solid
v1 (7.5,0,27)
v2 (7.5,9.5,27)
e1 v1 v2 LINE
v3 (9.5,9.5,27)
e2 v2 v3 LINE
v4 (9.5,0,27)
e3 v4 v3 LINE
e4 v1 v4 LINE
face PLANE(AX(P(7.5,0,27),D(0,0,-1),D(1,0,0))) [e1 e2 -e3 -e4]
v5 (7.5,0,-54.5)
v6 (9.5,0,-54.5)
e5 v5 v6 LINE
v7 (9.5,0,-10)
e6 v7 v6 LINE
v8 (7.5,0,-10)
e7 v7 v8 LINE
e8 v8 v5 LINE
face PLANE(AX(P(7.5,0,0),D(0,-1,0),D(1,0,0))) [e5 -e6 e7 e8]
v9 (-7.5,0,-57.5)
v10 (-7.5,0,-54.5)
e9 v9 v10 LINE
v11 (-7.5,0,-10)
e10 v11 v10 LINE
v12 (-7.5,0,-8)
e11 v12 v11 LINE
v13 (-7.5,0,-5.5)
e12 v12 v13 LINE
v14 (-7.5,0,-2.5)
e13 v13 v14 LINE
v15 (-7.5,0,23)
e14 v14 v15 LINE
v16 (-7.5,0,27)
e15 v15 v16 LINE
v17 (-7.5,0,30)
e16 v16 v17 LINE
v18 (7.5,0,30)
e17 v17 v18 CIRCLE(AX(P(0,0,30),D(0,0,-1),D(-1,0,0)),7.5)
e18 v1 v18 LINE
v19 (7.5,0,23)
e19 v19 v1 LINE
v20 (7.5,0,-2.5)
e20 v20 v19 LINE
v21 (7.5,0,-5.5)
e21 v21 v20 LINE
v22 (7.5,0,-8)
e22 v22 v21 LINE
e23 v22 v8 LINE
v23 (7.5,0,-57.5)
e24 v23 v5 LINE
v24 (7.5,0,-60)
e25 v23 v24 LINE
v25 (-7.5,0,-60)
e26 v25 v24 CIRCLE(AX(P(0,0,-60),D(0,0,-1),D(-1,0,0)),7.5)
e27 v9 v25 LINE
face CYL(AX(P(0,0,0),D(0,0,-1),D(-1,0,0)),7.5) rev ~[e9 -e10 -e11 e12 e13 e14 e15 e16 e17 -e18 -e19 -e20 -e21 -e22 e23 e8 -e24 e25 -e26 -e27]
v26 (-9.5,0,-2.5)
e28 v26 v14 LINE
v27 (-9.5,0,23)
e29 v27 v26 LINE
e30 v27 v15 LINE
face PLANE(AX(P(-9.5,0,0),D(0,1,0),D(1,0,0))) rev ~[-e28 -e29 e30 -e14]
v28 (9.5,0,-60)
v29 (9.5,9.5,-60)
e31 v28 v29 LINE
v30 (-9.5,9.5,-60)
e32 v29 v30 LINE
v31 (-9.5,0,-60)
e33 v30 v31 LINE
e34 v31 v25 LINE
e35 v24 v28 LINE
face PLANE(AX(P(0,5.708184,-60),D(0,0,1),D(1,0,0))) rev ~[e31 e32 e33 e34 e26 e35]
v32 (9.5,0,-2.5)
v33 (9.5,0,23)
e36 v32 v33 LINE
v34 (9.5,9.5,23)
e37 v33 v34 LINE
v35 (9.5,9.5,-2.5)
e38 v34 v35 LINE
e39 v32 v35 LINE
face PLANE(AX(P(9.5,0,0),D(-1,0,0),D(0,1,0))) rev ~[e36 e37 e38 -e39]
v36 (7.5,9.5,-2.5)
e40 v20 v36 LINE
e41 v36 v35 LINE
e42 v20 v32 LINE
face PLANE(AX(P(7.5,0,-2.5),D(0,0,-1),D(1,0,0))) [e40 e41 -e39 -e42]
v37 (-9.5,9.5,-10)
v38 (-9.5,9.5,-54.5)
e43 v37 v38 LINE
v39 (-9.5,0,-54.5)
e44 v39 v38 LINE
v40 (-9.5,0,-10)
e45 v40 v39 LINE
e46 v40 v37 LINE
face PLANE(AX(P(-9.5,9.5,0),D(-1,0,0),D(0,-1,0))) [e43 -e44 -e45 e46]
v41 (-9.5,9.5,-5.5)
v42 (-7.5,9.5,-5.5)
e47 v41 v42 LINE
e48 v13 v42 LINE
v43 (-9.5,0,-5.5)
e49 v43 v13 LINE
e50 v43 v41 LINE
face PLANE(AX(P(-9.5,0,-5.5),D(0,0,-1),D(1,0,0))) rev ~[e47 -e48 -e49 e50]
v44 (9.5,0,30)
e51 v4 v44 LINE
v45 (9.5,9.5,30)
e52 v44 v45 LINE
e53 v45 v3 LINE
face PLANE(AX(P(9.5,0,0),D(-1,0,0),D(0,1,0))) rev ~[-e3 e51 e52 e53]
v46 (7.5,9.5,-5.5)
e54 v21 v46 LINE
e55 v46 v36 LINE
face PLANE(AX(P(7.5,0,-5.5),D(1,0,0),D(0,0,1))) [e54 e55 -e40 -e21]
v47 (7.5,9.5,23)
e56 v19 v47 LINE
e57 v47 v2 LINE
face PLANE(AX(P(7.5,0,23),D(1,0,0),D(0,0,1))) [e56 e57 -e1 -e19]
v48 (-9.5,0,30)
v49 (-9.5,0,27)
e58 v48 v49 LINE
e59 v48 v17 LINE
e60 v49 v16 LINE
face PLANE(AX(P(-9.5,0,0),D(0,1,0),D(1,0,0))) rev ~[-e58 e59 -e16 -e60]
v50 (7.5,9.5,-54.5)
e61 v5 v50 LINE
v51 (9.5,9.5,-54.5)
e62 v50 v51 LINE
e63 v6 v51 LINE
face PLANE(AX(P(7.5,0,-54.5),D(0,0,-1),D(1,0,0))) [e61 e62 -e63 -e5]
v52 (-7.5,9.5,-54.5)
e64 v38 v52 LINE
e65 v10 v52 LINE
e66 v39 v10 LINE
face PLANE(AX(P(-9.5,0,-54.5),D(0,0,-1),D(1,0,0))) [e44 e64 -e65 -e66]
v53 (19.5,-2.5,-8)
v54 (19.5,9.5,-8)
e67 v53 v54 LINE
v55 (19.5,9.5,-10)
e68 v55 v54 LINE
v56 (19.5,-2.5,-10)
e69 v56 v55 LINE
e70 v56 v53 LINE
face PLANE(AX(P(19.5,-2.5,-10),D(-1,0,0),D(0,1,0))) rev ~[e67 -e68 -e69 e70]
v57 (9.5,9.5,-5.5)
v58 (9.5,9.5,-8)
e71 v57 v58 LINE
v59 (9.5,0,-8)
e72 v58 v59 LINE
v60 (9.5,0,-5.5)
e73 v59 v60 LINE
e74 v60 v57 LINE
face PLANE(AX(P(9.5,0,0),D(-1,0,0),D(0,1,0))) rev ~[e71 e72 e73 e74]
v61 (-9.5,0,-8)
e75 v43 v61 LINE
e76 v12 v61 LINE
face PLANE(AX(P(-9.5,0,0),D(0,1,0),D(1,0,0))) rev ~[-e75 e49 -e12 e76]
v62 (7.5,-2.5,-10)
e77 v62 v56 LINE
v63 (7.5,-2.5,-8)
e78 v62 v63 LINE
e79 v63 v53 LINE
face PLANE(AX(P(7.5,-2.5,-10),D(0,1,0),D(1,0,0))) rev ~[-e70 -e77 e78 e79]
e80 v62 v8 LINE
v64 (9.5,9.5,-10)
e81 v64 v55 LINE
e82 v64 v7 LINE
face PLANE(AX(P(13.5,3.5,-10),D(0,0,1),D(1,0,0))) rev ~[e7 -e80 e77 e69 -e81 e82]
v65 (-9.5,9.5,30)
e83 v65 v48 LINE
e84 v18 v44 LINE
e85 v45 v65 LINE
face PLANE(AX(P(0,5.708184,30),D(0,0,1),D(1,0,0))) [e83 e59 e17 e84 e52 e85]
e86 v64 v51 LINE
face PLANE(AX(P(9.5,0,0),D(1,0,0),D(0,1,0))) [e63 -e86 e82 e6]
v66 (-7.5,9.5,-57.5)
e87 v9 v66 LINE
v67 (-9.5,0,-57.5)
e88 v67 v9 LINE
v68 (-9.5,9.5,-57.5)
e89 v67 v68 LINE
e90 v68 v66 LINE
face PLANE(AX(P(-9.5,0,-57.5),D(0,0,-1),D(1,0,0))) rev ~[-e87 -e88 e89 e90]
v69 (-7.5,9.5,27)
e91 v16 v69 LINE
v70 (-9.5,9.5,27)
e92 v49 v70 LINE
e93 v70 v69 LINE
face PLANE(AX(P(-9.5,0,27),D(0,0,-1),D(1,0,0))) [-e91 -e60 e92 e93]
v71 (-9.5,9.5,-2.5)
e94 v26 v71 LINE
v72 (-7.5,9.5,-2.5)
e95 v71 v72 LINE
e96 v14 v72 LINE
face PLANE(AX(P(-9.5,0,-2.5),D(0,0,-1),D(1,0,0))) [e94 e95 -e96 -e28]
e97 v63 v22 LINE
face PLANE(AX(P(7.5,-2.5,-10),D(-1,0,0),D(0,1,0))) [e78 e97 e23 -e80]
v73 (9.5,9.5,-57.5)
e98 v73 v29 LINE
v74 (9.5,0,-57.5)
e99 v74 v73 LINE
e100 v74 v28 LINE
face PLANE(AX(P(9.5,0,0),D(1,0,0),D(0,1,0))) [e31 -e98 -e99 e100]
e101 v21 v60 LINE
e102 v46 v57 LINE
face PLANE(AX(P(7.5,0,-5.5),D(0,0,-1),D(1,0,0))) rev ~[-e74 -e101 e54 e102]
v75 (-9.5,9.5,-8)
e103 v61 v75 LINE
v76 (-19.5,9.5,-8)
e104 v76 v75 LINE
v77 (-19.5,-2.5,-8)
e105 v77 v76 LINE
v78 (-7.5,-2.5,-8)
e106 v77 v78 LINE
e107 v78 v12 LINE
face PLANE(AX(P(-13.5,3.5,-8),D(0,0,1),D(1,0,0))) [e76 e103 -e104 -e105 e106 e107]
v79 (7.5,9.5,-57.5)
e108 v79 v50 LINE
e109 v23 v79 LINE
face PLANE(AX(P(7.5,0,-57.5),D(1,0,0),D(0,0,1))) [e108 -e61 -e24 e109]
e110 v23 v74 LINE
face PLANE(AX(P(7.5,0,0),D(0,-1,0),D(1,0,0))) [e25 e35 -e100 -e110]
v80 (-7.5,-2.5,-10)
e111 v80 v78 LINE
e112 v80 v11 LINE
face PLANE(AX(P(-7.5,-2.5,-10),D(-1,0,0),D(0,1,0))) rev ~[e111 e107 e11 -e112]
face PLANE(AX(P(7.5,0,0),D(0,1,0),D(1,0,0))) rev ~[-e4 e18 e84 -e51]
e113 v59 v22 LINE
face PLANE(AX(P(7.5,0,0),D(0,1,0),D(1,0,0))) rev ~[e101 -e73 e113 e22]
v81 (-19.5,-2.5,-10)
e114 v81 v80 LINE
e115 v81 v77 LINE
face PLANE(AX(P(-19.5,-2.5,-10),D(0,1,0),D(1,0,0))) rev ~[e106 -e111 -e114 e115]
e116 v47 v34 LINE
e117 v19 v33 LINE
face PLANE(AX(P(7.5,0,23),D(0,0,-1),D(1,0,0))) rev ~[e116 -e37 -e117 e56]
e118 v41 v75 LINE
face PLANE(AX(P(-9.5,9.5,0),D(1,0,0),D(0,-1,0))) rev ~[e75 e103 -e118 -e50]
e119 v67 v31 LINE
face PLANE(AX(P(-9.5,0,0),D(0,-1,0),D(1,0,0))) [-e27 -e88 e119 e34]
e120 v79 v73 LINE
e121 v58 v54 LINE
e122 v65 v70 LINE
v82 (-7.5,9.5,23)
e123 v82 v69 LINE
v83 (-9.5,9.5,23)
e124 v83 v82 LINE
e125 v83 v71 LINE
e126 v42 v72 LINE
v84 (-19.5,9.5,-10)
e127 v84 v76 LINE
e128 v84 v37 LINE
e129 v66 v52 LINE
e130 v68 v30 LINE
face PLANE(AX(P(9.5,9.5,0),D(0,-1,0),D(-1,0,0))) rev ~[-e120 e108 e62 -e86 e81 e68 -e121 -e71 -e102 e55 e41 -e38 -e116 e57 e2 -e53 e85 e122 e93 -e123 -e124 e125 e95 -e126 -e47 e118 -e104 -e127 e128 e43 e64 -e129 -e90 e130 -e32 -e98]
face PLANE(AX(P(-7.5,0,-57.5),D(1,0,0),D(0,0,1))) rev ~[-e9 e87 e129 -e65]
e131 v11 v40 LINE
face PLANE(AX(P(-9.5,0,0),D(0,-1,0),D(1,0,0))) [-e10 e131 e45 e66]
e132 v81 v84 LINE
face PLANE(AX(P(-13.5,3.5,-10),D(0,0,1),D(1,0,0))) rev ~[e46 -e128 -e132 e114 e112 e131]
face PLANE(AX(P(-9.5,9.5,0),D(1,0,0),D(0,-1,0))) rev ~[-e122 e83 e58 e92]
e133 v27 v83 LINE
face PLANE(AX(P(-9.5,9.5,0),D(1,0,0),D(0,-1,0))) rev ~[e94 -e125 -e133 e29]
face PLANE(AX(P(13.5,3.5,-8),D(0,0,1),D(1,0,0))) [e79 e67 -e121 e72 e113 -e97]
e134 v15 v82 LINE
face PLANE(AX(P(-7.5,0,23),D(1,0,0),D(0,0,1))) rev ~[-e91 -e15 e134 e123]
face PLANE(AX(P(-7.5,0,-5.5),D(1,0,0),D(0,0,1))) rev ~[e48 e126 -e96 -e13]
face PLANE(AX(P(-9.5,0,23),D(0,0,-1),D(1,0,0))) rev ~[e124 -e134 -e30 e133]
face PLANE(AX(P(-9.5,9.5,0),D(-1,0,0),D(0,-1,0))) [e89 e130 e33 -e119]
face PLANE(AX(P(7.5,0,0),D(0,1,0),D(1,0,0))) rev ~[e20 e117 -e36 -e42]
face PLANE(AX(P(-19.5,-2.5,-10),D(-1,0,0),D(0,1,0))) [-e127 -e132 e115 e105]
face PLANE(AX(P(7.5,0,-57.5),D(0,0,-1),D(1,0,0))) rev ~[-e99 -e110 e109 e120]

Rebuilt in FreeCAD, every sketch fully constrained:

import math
import FreeCAD as App
import Part
import Sketcher
from FreeCAD import Vector

doc = App.newDocument("Part")
params = doc.addObject("Spreadsheet::Sheet", "Params")
for row, (alias, value) in enumerate([
    ("sketch1_radius", "7.5 mm"),
    ("sketch1_width", "2 mm"),
    ("sketch1_height", "9.5 mm"),
    ("pad1_length", "60 mm"),
    ("sketch2_width", "12 mm"),
    ("pad2_length", "2 mm"),
    ("sketch3_radius", "7.5 mm"),
    ("sketch3_width", "2 mm"),
    ("sketch3_height", "9.5 mm"),
    ("pad3_length", "30 mm"),
    ("sketch4_width", "2 mm"),
    ("sketch4_height", "3 mm"),
    ("sketch4_height2", "4 mm"),
], start=1):
    params.set(f"A{row}", alias)
    params.set(f"B{row}", "=" + value)
    params.setAlias(f"B{row}", alias)

body = doc.addObject("PartDesign::Body", "Body")

sketch1 = doc.addObject("Sketcher::SketchObject", "Sketch")
body.addObject(sketch1)
sketch1.AttachmentSupport = (doc.XY_Plane, [""])
sketch1.MapMode = "FlatFace"
sketch1.addGeometry([
    Part.LineSegment(Vector(-9.5, 0, 0), Vector(-7.5, 0, 0)),
    Part.ArcOfCircle(Part.Circle(Vector(0, 0, 0), Vector(0, 0, 1), 7.5), math.radians(0), math.radians(180)),
    Part.LineSegment(Vector(7.5, 0, 0), Vector(9.5, 0, 0)),
    Part.LineSegment(Vector(9.5, 0, 0), Vector(9.5, 9.5, 0)),
    Part.LineSegment(Vector(9.5, 9.5, 0), Vector(-9.5, 9.5, 0)),
    Part.LineSegment(Vector(-9.5, 9.5, 0), Vector(-9.5, 0, 0)),
], False)
sketch1.addConstraint([
    Sketcher.Constraint("Coincident", 0, 2, 1, 2),
    Sketcher.Constraint("Coincident", 1, 1, 2, 1),
    Sketcher.Constraint("Coincident", 2, 2, 3, 1),
    Sketcher.Constraint("Coincident", 3, 2, 4, 1),
    Sketcher.Constraint("Coincident", 4, 2, 5, 1),
    Sketcher.Constraint("Coincident", 5, 2, 0, 1),
    Sketcher.Constraint("Horizontal", 0),
    Sketcher.Constraint("Horizontal", 2),
    Sketcher.Constraint("Vertical", 3),
    Sketcher.Constraint("Horizontal", 4),
    Sketcher.Constraint("Vertical", 5),
    Sketcher.Constraint("Coincident", 1, 3, -1, 1),
    Sketcher.Constraint("Symmetric", 2, 2, 5, 2, -1, 1),
    Sketcher.Constraint("PointOnObject", 0, 2, -1),
    Sketcher.Constraint("Radius", 1, 7.5),
    Sketcher.Constraint("DistanceX", 0, 1, 0, 2, 2.0),
    Sketcher.Constraint("DistanceY", 3, 1, 3, 2, 9.5),
])
sketch1.setExpression("Constraints[14]", "Params.sketch1_radius")
sketch1.setExpression("Constraints[15]", "Params.sketch1_width")
sketch1.setExpression("Constraints[16]", "Params.sketch1_height")
pad1 = doc.addObject("PartDesign::Pad", "Pad")
body.addObject(pad1)
pad1.Profile = sketch1
pad1.setExpression("Length", "Params.pad1_length")
pad1.Reversed = True

sketch2 = doc.addObject("Sketcher::SketchObject", "Sketch001")
body.addObject(sketch2)
sketch2.AttachmentSupport = (doc.XY_Plane, [""])
sketch2.MapMode = "FlatFace"
sketch2.AttachmentOffset = App.Placement(Vector(0, 0, -10), App.Rotation())
sketch2.addGeometry([
    Part.LineSegment(Vector(-20, 10, 0), Vector(-20, -2, 0)),
    Part.LineSegment(Vector(-20, -2, 0), Vector(-8, -2, 0)),
    Part.LineSegment(Vector(-8, -2, 0), Vector(-8, 10, 0)),
    Part.LineSegment(Vector(-8, 10, 0), Vector(-20, 10, 0)),
    Part.LineSegment(Vector(8, 10, 0), Vector(8, -2, 0)),
    Part.LineSegment(Vector(8, -2, 0), Vector(20, -2, 0)),
    Part.LineSegment(Vector(20, -2, 0), Vector(20, 10, 0)),
    Part.LineSegment(Vector(20, 10, 0), Vector(8, 10, 0)),
], False)
sketch2.addConstraint([
    Sketcher.Constraint("Coincident", 0, 2, 1, 1),
    Sketcher.Constraint("Coincident", 1, 2, 2, 1),
    Sketcher.Constraint("Coincident", 2, 2, 3, 1),
    Sketcher.Constraint("Coincident", 3, 2, 0, 1),
    Sketcher.Constraint("Coincident", 4, 2, 5, 1),
    Sketcher.Constraint("Coincident", 5, 2, 6, 1),
    Sketcher.Constraint("Coincident", 6, 2, 7, 1),
    Sketcher.Constraint("Coincident", 7, 2, 4, 1),
    Sketcher.Constraint("Vertical", 0),
    Sketcher.Constraint("Horizontal", 1),
    Sketcher.Constraint("Vertical", 2),
    Sketcher.Constraint("Horizontal", 3),
    Sketcher.Constraint("Vertical", 4),
    Sketcher.Constraint("Horizontal", 5),
    Sketcher.Constraint("Vertical", 6),
    Sketcher.Constraint("Horizontal", 7),
    Sketcher.Constraint("Symmetric", 1, 2, 4, 2, -2),
    Sketcher.Constraint("Symmetric", 3, 2, 6, 2, -2),
    Sketcher.Constraint("Equal", 7, 0),
    Sketcher.Constraint("DistanceX", 1, 1, 1, 2, 12.0),
    Sketcher.Constraint("DistanceX", 1, 2, 4, 2, 15.0),
    Sketcher.Constraint("DistanceY", 0, 2, -1, 1, 2.5),
])
sketch2.setExpression("Constraints[19]", "Params.sketch2_width")
pad2 = doc.addObject("PartDesign::Pad", "Pad001")
body.addObject(pad2)
pad2.Profile = sketch2
pad2.setExpression("Length", "Params.pad2_length")

sketch3 = doc.addObject("Sketcher::SketchObject", "Sketch002")
body.addObject(sketch3)
sketch3.AttachmentSupport = (doc.XY_Plane, [""])
sketch3.MapMode = "FlatFace"
sketch3.addGeometry([
    Part.LineSegment(Vector(-9.5, 0, 0), Vector(-7.5, 0, 0)),
    Part.ArcOfCircle(Part.Circle(Vector(0, 0, 0), Vector(0, 0, 1), 7.5), math.radians(0), math.radians(180)),
    Part.LineSegment(Vector(7.5, 0, 0), Vector(9.5, 0, 0)),
    Part.LineSegment(Vector(9.5, 0, 0), Vector(9.5, 9.5, 0)),
    Part.LineSegment(Vector(9.5, 9.5, 0), Vector(-9.5, 9.5, 0)),
    Part.LineSegment(Vector(-9.5, 9.5, 0), Vector(-9.5, 0, 0)),
], False)
sketch3.addConstraint([
    Sketcher.Constraint("Coincident", 0, 2, 1, 2),
    Sketcher.Constraint("Coincident", 1, 1, 2, 1),
    Sketcher.Constraint("Coincident", 2, 2, 3, 1),
    Sketcher.Constraint("Coincident", 3, 2, 4, 1),
    Sketcher.Constraint("Coincident", 4, 2, 5, 1),
    Sketcher.Constraint("Coincident", 5, 2, 0, 1),
    Sketcher.Constraint("Horizontal", 0),
    Sketcher.Constraint("Horizontal", 2),
    Sketcher.Constraint("Vertical", 3),
    Sketcher.Constraint("Horizontal", 4),
    Sketcher.Constraint("Vertical", 5),
    Sketcher.Constraint("Coincident", 1, 3, -1, 1),
    Sketcher.Constraint("Symmetric", 2, 2, 5, 2, -1, 1),
    Sketcher.Constraint("PointOnObject", 0, 2, -1),
    Sketcher.Constraint("Radius", 1, 7.5),
    Sketcher.Constraint("DistanceX", 0, 1, 0, 2, 2.0),
    Sketcher.Constraint("DistanceY", 3, 1, 3, 2, 9.5),
])
sketch3.setExpression("Constraints[14]", "Params.sketch3_radius")
sketch3.setExpression("Constraints[15]", "Params.sketch3_width")
sketch3.setExpression("Constraints[16]", "Params.sketch3_height")
pad3 = doc.addObject("PartDesign::Pad", "Pad002")
body.addObject(pad3)
pad3.Profile = sketch3
pad3.setExpression("Length", "Params.pad3_length")

sketch4 = doc.addObject("Sketcher::SketchObject", "Sketch003")
body.addObject(sketch4)
sketch4.AttachmentSupport = (doc.XZ_Plane, [""])
sketch4.MapMode = "FlatFace"
sketch4.addGeometry([
    Part.LineSegment(Vector(-9.5, -2.5, 0), Vector(-9.5, -5.5, 0)),
    Part.LineSegment(Vector(-9.5, -5.5, 0), Vector(-7.5, -5.5, 0)),
    Part.LineSegment(Vector(-7.5, -5.5, 0), Vector(-7.5, -2.5, 0)),
    Part.LineSegment(Vector(-7.5, -2.5, 0), Vector(-9.5, -2.5, 0)),
    Part.LineSegment(Vector(-9.5, -54.5, 0), Vector(-9.5, -57.5, 0)),
    Part.LineSegment(Vector(-9.5, -57.5, 0), Vector(-7.5, -57.5, 0)),
    Part.LineSegment(Vector(-7.5, -57.5, 0), Vector(-7.5, -54.5, 0)),
    Part.LineSegment(Vector(-7.5, -54.5, 0), Vector(-9.5, -54.5, 0)),
    Part.LineSegment(Vector(7.5, -2.5, 0), Vector(7.5, -5.5, 0)),
    Part.LineSegment(Vector(7.5, -5.5, 0), Vector(9.5, -5.5, 0)),
    Part.LineSegment(Vector(9.5, -5.5, 0), Vector(9.5, -2.5, 0)),
    Part.LineSegment(Vector(9.5, -2.5, 0), Vector(7.5, -2.5, 0)),
    Part.LineSegment(Vector(7.5, -54.5, 0), Vector(7.5, -57.5, 0)),
    Part.LineSegment(Vector(7.5, -57.5, 0), Vector(9.5, -57.5, 0)),
    Part.LineSegment(Vector(9.5, -57.5, 0), Vector(9.5, -54.5, 0)),
    Part.LineSegment(Vector(9.5, -54.5, 0), Vector(7.5, -54.5, 0)),
    Part.LineSegment(Vector(-9.5, 27, 0), Vector(-9.5, 23, 0)),
    Part.LineSegment(Vector(-9.5, 23, 0), Vector(-7.5, 23, 0)),
    Part.LineSegment(Vector(-7.5, 23, 0), Vector(-7.5, 27, 0)),
    Part.LineSegment(Vector(-7.5, 27, 0), Vector(-9.5, 27, 0)),
    Part.LineSegment(Vector(7.5, 27, 0), Vector(7.5, 23, 0)),
    Part.LineSegment(Vector(7.5, 23, 0), Vector(9.5, 23, 0)),
    Part.LineSegment(Vector(9.5, 23, 0), Vector(9.5, 27, 0)),
    Part.LineSegment(Vector(9.5, 27, 0), Vector(7.5, 27, 0)),
], False)
sketch4.addConstraint([
    Sketcher.Constraint("Coincident", 0, 2, 1, 1),
    Sketcher.Constraint("Coincident", 1, 2, 2, 1),
    Sketcher.Constraint("Coincident", 2, 2, 3, 1),
    Sketcher.Constraint("Coincident", 3, 2, 0, 1),
    Sketcher.Constraint("Coincident", 4, 2, 5, 1),
    Sketcher.Constraint("Coincident", 5, 2, 6, 1),
    Sketcher.Constraint("Coincident", 6, 2, 7, 1),
    Sketcher.Constraint("Coincident", 7, 2, 4, 1),
    Sketcher.Constraint("Coincident", 8, 2, 9, 1),
    Sketcher.Constraint("Coincident", 9, 2, 10, 1),
    Sketcher.Constraint("Coincident", 10, 2, 11, 1),
    Sketcher.Constraint("Coincident", 11, 2, 8, 1),
    Sketcher.Constraint("Coincident", 12, 2, 13, 1),
    Sketcher.Constraint("Coincident", 13, 2, 14, 1),
    Sketcher.Constraint("Coincident", 14, 2, 15, 1),
    Sketcher.Constraint("Coincident", 15, 2, 12, 1),
    Sketcher.Constraint("Coincident", 16, 2, 17, 1),
    Sketcher.Constraint("Coincident", 17, 2, 18, 1),
    Sketcher.Constraint("Coincident", 18, 2, 19, 1),
    Sketcher.Constraint("Coincident", 19, 2, 16, 1),
    Sketcher.Constraint("Coincident", 20, 2, 21, 1),
    Sketcher.Constraint("Coincident", 21, 2, 22, 1),
    Sketcher.Constraint("Coincident", 22, 2, 23, 1),
    Sketcher.Constraint("Coincident", 23, 2, 20, 1),
    Sketcher.Constraint("Vertical", 0),
    Sketcher.Constraint("Horizontal", 1),
    Sketcher.Constraint("Vertical", 2),
    Sketcher.Constraint("Horizontal", 3),
    Sketcher.Constraint("Vertical", 4),
    Sketcher.Constraint("Horizontal", 5),
    Sketcher.Constraint("Vertical", 6),
    Sketcher.Constraint("Horizontal", 7),
    Sketcher.Constraint("Vertical", 8),
    Sketcher.Constraint("Horizontal", 9),
    Sketcher.Constraint("Vertical", 10),
    Sketcher.Constraint("Horizontal", 11),
    Sketcher.Constraint("Vertical", 12),
    Sketcher.Constraint("Horizontal", 13),
    Sketcher.Constraint("Vertical", 14),
    Sketcher.Constraint("Horizontal", 15),
    Sketcher.Constraint("Vertical", 16),
    Sketcher.Constraint("Horizontal", 17),
    Sketcher.Constraint("Vertical", 18),
    Sketcher.Constraint("Horizontal", 19),
    Sketcher.Constraint("Vertical", 20),
    Sketcher.Constraint("Horizontal", 21),
    Sketcher.Constraint("Vertical", 22),
    Sketcher.Constraint("Horizontal", 23),
    Sketcher.Constraint("Symmetric", 1, 2, 8, 2, -2),
    Sketcher.Constraint("Symmetric", 3, 2, 10, 2, -2),
    Sketcher.Constraint("Symmetric", 5, 2, 12, 2, -2),
    Sketcher.Constraint("Symmetric", 7, 2, 14, 2, -2),
    Sketcher.Constraint("Symmetric", 17, 2, 20, 2, -2),
    Sketcher.Constraint("Symmetric", 19, 2, 22, 2, -2),
    Sketcher.Constraint("Vertical", 3, 2, 4, 2),
    Sketcher.Constraint("Vertical", 2, 2, 5, 2),
    Sketcher.Constraint("Vertical", 7, 2, 16, 2),
    Sketcher.Constraint("Vertical", 6, 2, 17, 2),
    Sketcher.Constraint("Equal", 2, 4),
    Sketcher.Constraint("DistanceX", 1, 1, 1, 2, 2.0),
    Sketcher.Constraint("DistanceY", 0, 2, 0, 1, 3.0),
    Sketcher.Constraint("DistanceY", 16, 2, 16, 1, 4.0),
    Sketcher.Constraint("DistanceY", -1, 1, 16, 2, 23.0),
    Sketcher.Constraint("DistanceY", 4, 2, 0, 2, 52.0),
    Sketcher.Constraint("DistanceX", 1, 2, 8, 2, 15.0),
    Sketcher.Constraint("DistanceY", 0, 2, -1, 1, 5.5),
])
sketch4.setExpression("Constraints[59]", "Params.sketch4_width")
sketch4.setExpression("Constraints[60]", "Params.sketch4_height")
sketch4.setExpression("Constraints[61]", "Params.sketch4_height2")
pocket1 = doc.addObject("PartDesign::Pocket", "Pocket")
body.addObject(pocket1)
pocket1.Profile = sketch4
pocket1.Type = "ThroughAll"

doc.recompute()
